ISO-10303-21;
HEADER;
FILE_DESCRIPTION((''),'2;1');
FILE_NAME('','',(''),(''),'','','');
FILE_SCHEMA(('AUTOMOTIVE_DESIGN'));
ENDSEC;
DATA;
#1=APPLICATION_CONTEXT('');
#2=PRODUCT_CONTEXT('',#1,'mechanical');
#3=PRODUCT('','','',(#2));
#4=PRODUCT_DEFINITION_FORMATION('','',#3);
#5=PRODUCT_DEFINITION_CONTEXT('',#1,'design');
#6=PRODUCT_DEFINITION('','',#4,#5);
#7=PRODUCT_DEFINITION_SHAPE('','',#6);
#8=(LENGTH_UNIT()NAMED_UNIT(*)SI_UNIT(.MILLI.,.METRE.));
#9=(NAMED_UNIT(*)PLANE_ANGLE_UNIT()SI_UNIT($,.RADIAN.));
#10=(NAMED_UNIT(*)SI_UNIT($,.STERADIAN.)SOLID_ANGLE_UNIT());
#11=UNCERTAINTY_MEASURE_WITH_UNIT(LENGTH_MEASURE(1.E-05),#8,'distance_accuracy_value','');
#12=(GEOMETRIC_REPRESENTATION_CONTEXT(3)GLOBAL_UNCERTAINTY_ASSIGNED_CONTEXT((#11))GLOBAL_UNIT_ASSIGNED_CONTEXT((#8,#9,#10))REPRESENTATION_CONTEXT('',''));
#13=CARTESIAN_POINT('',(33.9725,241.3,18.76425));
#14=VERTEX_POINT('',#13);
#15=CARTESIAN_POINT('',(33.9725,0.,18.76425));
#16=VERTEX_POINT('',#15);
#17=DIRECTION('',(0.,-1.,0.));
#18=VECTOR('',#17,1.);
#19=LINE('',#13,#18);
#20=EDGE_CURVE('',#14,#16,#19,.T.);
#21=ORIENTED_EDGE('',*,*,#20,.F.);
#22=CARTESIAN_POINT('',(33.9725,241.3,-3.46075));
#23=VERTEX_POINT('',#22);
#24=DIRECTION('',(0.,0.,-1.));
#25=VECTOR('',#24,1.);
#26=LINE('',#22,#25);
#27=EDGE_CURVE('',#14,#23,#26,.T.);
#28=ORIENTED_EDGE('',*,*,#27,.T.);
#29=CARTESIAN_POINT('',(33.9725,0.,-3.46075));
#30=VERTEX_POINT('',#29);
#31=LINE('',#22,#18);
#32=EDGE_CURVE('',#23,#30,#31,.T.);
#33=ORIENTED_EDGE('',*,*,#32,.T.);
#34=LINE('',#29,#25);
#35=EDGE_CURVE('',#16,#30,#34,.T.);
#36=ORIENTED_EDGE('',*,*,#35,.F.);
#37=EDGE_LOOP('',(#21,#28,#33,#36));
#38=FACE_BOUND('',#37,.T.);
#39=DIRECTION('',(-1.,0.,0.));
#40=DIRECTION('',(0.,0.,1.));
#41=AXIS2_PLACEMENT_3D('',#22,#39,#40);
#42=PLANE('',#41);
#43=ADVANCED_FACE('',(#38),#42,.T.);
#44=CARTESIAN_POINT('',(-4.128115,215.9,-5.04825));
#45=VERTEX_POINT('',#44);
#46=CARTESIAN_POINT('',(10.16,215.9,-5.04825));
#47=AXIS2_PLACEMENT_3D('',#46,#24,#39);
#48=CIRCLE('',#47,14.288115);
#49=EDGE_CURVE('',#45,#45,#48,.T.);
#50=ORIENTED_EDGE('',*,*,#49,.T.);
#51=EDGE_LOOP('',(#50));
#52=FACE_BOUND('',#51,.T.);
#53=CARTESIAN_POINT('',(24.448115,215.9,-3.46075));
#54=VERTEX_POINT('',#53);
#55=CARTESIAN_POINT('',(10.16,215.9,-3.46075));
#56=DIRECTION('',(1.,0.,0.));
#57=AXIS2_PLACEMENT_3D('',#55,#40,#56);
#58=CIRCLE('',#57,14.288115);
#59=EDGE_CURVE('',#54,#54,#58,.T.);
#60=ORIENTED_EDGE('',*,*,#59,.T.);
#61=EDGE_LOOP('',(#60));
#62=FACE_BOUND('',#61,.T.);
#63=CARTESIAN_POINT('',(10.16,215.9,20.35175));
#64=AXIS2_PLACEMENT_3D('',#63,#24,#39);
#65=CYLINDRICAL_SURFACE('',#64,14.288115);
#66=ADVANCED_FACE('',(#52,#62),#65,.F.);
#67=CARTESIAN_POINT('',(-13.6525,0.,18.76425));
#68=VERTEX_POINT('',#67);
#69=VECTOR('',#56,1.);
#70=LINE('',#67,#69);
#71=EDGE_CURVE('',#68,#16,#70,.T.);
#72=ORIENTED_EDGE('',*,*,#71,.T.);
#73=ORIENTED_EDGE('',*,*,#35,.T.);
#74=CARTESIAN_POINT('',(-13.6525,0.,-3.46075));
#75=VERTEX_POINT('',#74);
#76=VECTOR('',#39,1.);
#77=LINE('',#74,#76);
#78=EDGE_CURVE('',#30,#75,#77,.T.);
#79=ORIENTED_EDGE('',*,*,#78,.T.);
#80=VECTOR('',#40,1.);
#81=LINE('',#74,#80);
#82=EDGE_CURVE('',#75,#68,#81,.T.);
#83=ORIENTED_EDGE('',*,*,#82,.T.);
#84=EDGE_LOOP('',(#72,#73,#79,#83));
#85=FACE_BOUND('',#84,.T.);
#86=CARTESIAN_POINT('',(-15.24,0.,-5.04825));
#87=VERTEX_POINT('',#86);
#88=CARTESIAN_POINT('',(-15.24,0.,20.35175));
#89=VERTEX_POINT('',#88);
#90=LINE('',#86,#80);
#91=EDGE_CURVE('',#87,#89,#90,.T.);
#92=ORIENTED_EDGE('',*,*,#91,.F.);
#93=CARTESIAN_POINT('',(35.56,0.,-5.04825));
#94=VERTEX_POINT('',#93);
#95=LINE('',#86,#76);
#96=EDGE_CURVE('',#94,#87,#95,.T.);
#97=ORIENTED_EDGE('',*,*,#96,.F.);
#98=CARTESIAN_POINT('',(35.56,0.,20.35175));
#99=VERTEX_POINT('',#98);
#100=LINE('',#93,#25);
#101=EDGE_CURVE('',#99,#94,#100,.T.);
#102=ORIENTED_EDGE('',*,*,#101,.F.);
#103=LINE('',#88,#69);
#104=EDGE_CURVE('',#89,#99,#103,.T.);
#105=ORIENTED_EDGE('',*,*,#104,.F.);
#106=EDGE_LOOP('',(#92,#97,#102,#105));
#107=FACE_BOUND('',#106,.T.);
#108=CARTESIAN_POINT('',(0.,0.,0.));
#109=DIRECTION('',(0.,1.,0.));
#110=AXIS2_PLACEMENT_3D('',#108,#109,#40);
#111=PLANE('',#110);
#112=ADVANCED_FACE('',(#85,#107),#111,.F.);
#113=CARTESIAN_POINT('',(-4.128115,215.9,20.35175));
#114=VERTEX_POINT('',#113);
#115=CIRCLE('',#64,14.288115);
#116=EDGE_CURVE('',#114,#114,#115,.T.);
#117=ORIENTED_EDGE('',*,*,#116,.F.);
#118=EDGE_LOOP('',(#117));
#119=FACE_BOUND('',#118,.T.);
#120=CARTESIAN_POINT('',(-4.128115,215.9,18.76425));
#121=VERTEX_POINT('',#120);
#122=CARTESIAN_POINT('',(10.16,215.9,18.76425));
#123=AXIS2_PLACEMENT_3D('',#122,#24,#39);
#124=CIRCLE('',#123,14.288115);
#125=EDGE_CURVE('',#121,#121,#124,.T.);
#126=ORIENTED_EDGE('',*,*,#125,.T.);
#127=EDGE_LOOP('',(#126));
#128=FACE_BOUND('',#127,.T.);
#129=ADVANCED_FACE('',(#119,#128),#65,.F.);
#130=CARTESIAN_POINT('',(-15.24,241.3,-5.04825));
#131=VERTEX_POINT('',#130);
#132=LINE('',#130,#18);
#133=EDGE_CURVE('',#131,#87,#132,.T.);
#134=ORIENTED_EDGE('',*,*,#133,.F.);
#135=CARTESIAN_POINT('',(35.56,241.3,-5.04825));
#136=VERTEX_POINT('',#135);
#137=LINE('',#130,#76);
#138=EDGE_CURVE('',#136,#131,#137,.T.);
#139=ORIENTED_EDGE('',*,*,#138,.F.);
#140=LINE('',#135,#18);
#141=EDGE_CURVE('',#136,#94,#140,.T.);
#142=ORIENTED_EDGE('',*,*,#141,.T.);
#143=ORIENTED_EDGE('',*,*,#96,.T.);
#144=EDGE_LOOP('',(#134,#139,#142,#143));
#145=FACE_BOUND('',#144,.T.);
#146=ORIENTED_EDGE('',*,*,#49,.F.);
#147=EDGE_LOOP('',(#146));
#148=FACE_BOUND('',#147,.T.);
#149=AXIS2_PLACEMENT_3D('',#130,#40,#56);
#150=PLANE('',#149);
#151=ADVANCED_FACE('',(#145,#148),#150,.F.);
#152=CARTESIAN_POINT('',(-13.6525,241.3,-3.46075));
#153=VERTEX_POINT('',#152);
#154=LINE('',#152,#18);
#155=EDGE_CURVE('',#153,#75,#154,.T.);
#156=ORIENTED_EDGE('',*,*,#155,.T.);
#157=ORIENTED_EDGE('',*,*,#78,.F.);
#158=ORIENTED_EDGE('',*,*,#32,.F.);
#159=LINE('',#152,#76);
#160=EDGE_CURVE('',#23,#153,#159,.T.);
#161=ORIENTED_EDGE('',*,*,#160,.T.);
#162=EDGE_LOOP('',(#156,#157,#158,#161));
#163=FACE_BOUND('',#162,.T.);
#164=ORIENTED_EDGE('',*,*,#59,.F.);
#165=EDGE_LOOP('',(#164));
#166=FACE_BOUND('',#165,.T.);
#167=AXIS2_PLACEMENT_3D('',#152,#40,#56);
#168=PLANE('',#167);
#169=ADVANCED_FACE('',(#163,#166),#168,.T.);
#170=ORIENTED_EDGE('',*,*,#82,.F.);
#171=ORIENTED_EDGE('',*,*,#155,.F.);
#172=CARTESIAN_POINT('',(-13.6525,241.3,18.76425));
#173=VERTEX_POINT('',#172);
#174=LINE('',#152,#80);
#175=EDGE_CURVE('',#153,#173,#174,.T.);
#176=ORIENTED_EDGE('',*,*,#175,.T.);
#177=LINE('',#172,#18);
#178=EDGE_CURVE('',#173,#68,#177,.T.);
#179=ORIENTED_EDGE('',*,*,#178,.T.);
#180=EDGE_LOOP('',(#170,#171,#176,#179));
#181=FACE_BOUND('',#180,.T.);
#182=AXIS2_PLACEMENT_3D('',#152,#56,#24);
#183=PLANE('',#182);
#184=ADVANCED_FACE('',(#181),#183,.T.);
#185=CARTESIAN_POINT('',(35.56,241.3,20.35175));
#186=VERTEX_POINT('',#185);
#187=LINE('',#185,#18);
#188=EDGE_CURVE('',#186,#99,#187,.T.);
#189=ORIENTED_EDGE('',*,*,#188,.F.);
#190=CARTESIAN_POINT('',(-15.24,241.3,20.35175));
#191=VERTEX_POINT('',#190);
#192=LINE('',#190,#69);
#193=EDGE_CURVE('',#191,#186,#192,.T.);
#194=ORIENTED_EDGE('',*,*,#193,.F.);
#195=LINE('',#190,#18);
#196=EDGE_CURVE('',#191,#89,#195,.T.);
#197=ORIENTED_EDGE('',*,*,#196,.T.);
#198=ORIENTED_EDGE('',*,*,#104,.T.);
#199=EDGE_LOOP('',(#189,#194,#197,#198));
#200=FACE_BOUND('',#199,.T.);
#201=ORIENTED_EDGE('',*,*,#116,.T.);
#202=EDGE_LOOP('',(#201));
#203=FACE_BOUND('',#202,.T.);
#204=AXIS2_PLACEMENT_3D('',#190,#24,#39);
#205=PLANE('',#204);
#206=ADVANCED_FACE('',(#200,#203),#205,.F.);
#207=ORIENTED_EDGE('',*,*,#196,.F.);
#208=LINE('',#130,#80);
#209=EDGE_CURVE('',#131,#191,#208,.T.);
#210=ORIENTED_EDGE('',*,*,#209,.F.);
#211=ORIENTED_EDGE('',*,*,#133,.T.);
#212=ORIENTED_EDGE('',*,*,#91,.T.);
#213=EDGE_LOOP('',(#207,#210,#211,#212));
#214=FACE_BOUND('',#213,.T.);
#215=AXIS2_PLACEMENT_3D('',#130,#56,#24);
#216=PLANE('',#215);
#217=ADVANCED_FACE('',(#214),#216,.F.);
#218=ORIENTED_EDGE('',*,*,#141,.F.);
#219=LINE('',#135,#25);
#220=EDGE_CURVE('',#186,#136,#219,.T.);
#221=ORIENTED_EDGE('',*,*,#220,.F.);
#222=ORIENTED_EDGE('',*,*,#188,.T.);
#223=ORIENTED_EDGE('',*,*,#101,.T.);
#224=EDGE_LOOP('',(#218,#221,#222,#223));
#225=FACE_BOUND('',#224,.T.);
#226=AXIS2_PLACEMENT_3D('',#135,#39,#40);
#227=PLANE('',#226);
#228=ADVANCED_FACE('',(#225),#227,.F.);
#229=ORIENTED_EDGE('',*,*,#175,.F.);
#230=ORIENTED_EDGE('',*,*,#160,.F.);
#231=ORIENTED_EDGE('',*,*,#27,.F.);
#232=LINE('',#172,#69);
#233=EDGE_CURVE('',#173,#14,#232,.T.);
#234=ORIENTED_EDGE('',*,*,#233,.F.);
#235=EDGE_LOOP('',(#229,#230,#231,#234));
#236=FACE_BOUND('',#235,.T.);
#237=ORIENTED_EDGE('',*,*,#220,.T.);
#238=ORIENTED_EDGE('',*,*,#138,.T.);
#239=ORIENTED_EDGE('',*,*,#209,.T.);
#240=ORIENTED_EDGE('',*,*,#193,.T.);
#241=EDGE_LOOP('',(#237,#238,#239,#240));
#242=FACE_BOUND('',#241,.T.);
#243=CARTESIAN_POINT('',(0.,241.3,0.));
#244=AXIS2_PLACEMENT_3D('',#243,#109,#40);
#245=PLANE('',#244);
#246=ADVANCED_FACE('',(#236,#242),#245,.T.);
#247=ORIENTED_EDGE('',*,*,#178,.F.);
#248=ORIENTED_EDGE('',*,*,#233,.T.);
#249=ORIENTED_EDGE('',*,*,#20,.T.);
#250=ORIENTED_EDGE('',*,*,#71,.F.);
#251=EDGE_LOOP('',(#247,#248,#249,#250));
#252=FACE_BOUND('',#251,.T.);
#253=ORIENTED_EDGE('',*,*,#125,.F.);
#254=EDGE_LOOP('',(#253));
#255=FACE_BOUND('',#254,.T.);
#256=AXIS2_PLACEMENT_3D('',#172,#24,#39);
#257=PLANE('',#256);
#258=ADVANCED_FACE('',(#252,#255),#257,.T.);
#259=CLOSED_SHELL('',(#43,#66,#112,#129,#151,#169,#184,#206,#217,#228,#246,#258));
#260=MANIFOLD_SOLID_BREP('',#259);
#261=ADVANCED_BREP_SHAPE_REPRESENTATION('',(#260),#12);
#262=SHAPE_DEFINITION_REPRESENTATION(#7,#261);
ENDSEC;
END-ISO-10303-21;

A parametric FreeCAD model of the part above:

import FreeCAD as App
import Part
import Sketcher
from FreeCAD import Vector
Q = App.Units.Quantity

doc = App.newDocument("Part")
body = doc.addObject("PartDesign::Body", "Body")

# Sketch on XZ plane
sketch1 = body.newObject("Sketcher::SketchObject", "Sketch")
sketch1.AttachmentSupport = (doc.getObject("XZ_Plane"), [""])
sketch1.MapMode = "FlatFace"
sketch1.addGeometry([
    Part.LineSegment(Vector(-15, -5, 0), Vector(-15, 20, 0)),  # 0
    Part.LineSegment(Vector(-15, 20, 0), Vector(36, 20, 0)),  # 1
    Part.LineSegment(Vector(36, 20, 0), Vector(36, -5, 0)),  # 2
    Part.LineSegment(Vector(36, -5, 0), Vector(-15, -5, 0)),  # 3
    Part.LineSegment(Vector(34, 19, 0), Vector(-14, 19, 0)),  # 4
    Part.LineSegment(Vector(-14, 19, 0), Vector(-14, -3, 0)),  # 5
    Part.LineSegment(Vector(-14, -3, 0), Vector(34, -3, 0)),  # 6
    Part.LineSegment(Vector(34, -3, 0), Vector(34, 19, 0)),  # 7
], False)
sketch1.addConstraint([
    Sketcher.Constraint("Coincident", 0, 2, 1, 1),
    Sketcher.Constraint("Coincident", 1, 2, 2, 1),
    Sketcher.Constraint("Coincident", 2, 2, 3, 1),
    Sketcher.Constraint("Coincident", 3, 2, 0, 1),
    Sketcher.Constraint("Coincident", 4, 2, 5, 1),
    Sketcher.Constraint("Coincident", 5, 2, 6, 1),
    Sketcher.Constraint("Coincident", 6, 2, 7, 1),
    Sketcher.Constraint("Coincident", 7, 2, 4, 1),
    Sketcher.Constraint("Vertical", 0),
    Sketcher.Constraint("Horizontal", 1),
    Sketcher.Constraint("Vertical", 2),
    Sketcher.Constraint("Horizontal", 3),
    Sketcher.Constraint("Horizontal", 4),
    Sketcher.Constraint("Vertical", 5),
    Sketcher.Constraint("Horizontal", 6),
    Sketcher.Constraint("Vertical", 7),
    Sketcher.Constraint("DistanceX", 1, 1, 1, 2, Q("2 in")),
    Sketcher.Constraint("DistanceY", 0, 1, 0, 2, Q("1 in")),
    Sketcher.Constraint("DistanceX", 0, 2, -1, 1, Q("0.6 in")),
    Sketcher.Constraint("DistanceX", 4, 2, 4, 1, Q("1.875 in")),
    Sketcher.Constraint("DistanceY", 5, 2, 5, 1, Q("0.875 in")),
    Sketcher.Constraint("DistanceX", 0, 2, 4, 2, Q("0.0625 in")),
    Sketcher.Constraint("DistanceY", 4, 2, 0, 2, Q("0.0625 in")),
    Sketcher.Constraint("DistanceY", -1, 1, 0, 2, 20.35175),
])
pad1 = body.newObject("PartDesign::Pad", "Pad")
pad1.Profile = sketch1
pad1.Length = Q("9.5 in")
pad1.Reversed = True

# Sketch on XY plane
sketch2 = body.newObject("Sketcher::SketchObject", "Sketch001")
sketch2.AttachmentSupport = (doc.getObject("XY_Plane"), [""])
sketch2.MapMode = "FlatFace"
sketch2.AttachmentOffset = App.Placement(Vector(0, 0, -5.04825), App.Rotation())
sketch2.addGeometry(Part.Circle(Vector(10, 216, 0), Vector(0, 0, 1), 14), False)
sketch2.addConstraint([
    Sketcher.Constraint("DistanceX", -1, 1, 0, 3, Q("0.4 in")),
    Sketcher.Constraint("DistanceY", -1, 1, 0, 3, Q("8.5 in")),
    Sketcher.Constraint("Diameter", 0, 28.576229),
])
pocket1 = body.newObject("PartDesign::Pocket", "Pocket")
pocket1.Profile = sketch2
pocket1.Type = "ThroughAll"
pocket1.Reversed = True

doc.recompute()
